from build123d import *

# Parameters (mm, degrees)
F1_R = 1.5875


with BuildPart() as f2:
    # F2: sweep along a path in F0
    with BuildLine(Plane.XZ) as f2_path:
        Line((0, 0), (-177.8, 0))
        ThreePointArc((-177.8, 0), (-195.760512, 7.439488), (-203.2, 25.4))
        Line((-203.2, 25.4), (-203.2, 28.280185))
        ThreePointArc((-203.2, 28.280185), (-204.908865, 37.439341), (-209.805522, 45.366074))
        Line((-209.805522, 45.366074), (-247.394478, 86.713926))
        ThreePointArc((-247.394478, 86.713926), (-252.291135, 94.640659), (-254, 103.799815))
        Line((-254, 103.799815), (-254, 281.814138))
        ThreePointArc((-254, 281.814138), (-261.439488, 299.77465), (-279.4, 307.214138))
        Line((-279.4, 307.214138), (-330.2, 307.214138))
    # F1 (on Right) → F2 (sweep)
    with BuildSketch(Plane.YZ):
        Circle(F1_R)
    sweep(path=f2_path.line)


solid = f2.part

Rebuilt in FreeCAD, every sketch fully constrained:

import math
import FreeCAD as App
import Part
import Sketcher
from FreeCAD import Vector
Q = App.Units.Quantity

doc = App.newDocument("Part")
params = doc.addObject("Spreadsheet::Sheet", "Params")
for row, (alias, value) in enumerate([
    ("sketch1_diameter", "0.125 in"),
    ("sketch2_radius", "1 in"),
    ("sketch2_radius2", "0.9999999 in"),
    ("sketch2_width", "7 in"),
    ("sketch2_width2", "2 in"),
    ("sketch2_length", "2.2 in"),
], start=1):
    params.set(f"A{row}", alias)
    params.set(f"B{row}", "=" + value)
    params.setAlias(f"B{row}", alias)

body = doc.addObject("PartDesign::Body", "Body")

# Sketch on YZ plane
sketch1 = doc.addObject("Sketcher::SketchObject", "Sketch")
body.addObject(sketch1)
sketch1.AttachmentSupport = (doc.YZ_Plane, [""])
sketch1.MapMode = "FlatFace"
sketch1.addGeometry(Part.Circle(Vector(0, 0, 0), Vector(0, 0, 1), 1.6), False)
sketch1.addConstraint(Sketcher.Constraint("Coincident", 0, 3, -1, 1))
sketch1.addConstraint(Sketcher.Constraint("Diameter", 0, Q("0.125 in")))
sketch1.setExpression("Constraints[1]", "Params.sketch1_diameter")

# Sketch on XZ plane
sketch2 = doc.addObject("Sketcher::SketchObject", "Sketch001")
body.addObject(sketch2)
sketch2.AttachmentSupport = (doc.XZ_Plane, [""])
sketch2.MapMode = "FlatFace"
sketch2.addGeometry(Part.LineSegment(Vector(0, 0, 0), Vector(-177.8, 0, 0)), False)
sketch2.addGeometry(Part.ArcOfCircle(Part.Circle(Vector(-177.8, 25.4, 0), Vector(0, 0, 1), 25.4), math.radians(-180), math.radians(-90)), False)
sketch2.addGeometry(Part.LineSegment(Vector(-203.2, 25.4, 0), Vector(-203.2, 28.3, 0)), False)
sketch2.addGeometry(Part.ArcOfCircle(Part.Circle(Vector(-228.6, 28.3, 0), Vector(0, 0, 1), 25.4), math.radians(0), math.radians(42)), False)
sketch2.addGeometry(Part.LineSegment(Vector(-209.8, 45.4, 0), Vector(-247.4, 86.7, 0)), False)
sketch2.addGeometry(Part.ArcOfCircle(Part.Circle(Vector(-228.6, 103.8, 0), Vector(0, 0, 1), 25.4), math.radians(180), math.radians(222)), False)
sketch2.addGeometry(Part.LineSegment(Vector(-254, 103.8, 0), Vector(-254, 281.8, 0)), False)
sketch2.addGeometry(Part.ArcOfCircle(Part.Circle(Vector(-279.4, 281.8, 0), Vector(0, 0, 1), 25.4), math.radians(0), math.radians(90)), False)
sketch2.addGeometry(Part.LineSegment(Vector(-279.4, 307.2, 0), Vector(-330.2, 307.2, 0)), False)
sketch2.addConstraint(Sketcher.Constraint("Tangent", 0, 2, 1, 2))
sketch2.addConstraint(Sketcher.Constraint("Tangent", 1, 1, 2, 1))
sketch2.addConstraint(Sketcher.Constraint("Tangent", 2, 2, 3, 1))
sketch2.addConstraint(Sketcher.Constraint("Tangent", 3, 2, 4, 1))
sketch2.addConstraint(Sketcher.Constraint("Tangent", 4, 2, 5, 2))
sketch2.addConstraint(Sketcher.Constraint("Tangent", 5, 1, 6, 1))
sketch2.addConstraint(Sketcher.Constraint("Tangent", 6, 2, 7, 1))
sketch2.addConstraint(Sketcher.Constraint("Tangent", 7, 2, 8, 1))
sketch2.addConstraint(Sketcher.Constraint("Horizontal", 0))
sketch2.addConstraint(Sketcher.Constraint("Vertical", 2))
sketch2.addConstraint(Sketcher.Constraint("Vertical", 6))
sketch2.addConstraint(Sketcher.Constraint("Horizontal", 8))
sketch2.addConstraint(Sketcher.Constraint("Coincident", 0, 1, -1, 1))
sketch2.addConstraint(Sketcher.Constraint("Equal", 3, 5))
sketch2.addConstraint(Sketcher.Constraint("Equal", 1, 7))
sketch2.addConstraint(Sketcher.Constraint("Radius", 1, Q("1 in")))
sketch2.addConstraint(Sketcher.Constraint("Radius", 3, Q("0.9999999 in")))
sketch2.addConstraint(Sketcher.Constraint("DistanceX", 0, 2, 0, 1, Q("7 in")))
sketch2.addConstraint(Sketcher.Constraint("DistanceX", 8, 2, 8, 1, Q("2 in")))
sketch2.addConstraint(Sketcher.Constraint("DistanceX", 5, 3, -1, 1, Q("9.0000001 in")))
sketch2.addConstraint(Sketcher.Constraint("Distance", 4, Q("2.2 in")))
sketch2.addConstraint(Sketcher.Constraint("DistanceY", 2, 1, 2, 2, Q("2.880185 mm")))
sketch2.addConstraint(Sketcher.Constraint("DistanceY", 6, 1, 6, 2, Q("178.014323 mm")))
sketch2.setExpression("Constraints[15]", "Params.sketch2_radius")
sketch2.setExpression("Constraints[16]", "Params.sketch2_radius2")
sketch2.setExpression("Constraints[17]", "Params.sketch2_width")
sketch2.setExpression("Constraints[18]", "Params.sketch2_width2")
sketch2.setExpression("Constraints[20]", "Params.sketch2_length")
doc.recompute()

additivepipe = doc.addObject("PartDesign::AdditivePipe", "AdditivePipe")
body.addObject(additivepipe)
additivepipe.Profile = sketch1
additivepipe.Spine = (sketch2, ["Edge1", "Edge2", "Edge3", "Edge4", "Edge5", "Edge6", "Edge7", "Edge8", "Edge9"])

doc.recompute()
